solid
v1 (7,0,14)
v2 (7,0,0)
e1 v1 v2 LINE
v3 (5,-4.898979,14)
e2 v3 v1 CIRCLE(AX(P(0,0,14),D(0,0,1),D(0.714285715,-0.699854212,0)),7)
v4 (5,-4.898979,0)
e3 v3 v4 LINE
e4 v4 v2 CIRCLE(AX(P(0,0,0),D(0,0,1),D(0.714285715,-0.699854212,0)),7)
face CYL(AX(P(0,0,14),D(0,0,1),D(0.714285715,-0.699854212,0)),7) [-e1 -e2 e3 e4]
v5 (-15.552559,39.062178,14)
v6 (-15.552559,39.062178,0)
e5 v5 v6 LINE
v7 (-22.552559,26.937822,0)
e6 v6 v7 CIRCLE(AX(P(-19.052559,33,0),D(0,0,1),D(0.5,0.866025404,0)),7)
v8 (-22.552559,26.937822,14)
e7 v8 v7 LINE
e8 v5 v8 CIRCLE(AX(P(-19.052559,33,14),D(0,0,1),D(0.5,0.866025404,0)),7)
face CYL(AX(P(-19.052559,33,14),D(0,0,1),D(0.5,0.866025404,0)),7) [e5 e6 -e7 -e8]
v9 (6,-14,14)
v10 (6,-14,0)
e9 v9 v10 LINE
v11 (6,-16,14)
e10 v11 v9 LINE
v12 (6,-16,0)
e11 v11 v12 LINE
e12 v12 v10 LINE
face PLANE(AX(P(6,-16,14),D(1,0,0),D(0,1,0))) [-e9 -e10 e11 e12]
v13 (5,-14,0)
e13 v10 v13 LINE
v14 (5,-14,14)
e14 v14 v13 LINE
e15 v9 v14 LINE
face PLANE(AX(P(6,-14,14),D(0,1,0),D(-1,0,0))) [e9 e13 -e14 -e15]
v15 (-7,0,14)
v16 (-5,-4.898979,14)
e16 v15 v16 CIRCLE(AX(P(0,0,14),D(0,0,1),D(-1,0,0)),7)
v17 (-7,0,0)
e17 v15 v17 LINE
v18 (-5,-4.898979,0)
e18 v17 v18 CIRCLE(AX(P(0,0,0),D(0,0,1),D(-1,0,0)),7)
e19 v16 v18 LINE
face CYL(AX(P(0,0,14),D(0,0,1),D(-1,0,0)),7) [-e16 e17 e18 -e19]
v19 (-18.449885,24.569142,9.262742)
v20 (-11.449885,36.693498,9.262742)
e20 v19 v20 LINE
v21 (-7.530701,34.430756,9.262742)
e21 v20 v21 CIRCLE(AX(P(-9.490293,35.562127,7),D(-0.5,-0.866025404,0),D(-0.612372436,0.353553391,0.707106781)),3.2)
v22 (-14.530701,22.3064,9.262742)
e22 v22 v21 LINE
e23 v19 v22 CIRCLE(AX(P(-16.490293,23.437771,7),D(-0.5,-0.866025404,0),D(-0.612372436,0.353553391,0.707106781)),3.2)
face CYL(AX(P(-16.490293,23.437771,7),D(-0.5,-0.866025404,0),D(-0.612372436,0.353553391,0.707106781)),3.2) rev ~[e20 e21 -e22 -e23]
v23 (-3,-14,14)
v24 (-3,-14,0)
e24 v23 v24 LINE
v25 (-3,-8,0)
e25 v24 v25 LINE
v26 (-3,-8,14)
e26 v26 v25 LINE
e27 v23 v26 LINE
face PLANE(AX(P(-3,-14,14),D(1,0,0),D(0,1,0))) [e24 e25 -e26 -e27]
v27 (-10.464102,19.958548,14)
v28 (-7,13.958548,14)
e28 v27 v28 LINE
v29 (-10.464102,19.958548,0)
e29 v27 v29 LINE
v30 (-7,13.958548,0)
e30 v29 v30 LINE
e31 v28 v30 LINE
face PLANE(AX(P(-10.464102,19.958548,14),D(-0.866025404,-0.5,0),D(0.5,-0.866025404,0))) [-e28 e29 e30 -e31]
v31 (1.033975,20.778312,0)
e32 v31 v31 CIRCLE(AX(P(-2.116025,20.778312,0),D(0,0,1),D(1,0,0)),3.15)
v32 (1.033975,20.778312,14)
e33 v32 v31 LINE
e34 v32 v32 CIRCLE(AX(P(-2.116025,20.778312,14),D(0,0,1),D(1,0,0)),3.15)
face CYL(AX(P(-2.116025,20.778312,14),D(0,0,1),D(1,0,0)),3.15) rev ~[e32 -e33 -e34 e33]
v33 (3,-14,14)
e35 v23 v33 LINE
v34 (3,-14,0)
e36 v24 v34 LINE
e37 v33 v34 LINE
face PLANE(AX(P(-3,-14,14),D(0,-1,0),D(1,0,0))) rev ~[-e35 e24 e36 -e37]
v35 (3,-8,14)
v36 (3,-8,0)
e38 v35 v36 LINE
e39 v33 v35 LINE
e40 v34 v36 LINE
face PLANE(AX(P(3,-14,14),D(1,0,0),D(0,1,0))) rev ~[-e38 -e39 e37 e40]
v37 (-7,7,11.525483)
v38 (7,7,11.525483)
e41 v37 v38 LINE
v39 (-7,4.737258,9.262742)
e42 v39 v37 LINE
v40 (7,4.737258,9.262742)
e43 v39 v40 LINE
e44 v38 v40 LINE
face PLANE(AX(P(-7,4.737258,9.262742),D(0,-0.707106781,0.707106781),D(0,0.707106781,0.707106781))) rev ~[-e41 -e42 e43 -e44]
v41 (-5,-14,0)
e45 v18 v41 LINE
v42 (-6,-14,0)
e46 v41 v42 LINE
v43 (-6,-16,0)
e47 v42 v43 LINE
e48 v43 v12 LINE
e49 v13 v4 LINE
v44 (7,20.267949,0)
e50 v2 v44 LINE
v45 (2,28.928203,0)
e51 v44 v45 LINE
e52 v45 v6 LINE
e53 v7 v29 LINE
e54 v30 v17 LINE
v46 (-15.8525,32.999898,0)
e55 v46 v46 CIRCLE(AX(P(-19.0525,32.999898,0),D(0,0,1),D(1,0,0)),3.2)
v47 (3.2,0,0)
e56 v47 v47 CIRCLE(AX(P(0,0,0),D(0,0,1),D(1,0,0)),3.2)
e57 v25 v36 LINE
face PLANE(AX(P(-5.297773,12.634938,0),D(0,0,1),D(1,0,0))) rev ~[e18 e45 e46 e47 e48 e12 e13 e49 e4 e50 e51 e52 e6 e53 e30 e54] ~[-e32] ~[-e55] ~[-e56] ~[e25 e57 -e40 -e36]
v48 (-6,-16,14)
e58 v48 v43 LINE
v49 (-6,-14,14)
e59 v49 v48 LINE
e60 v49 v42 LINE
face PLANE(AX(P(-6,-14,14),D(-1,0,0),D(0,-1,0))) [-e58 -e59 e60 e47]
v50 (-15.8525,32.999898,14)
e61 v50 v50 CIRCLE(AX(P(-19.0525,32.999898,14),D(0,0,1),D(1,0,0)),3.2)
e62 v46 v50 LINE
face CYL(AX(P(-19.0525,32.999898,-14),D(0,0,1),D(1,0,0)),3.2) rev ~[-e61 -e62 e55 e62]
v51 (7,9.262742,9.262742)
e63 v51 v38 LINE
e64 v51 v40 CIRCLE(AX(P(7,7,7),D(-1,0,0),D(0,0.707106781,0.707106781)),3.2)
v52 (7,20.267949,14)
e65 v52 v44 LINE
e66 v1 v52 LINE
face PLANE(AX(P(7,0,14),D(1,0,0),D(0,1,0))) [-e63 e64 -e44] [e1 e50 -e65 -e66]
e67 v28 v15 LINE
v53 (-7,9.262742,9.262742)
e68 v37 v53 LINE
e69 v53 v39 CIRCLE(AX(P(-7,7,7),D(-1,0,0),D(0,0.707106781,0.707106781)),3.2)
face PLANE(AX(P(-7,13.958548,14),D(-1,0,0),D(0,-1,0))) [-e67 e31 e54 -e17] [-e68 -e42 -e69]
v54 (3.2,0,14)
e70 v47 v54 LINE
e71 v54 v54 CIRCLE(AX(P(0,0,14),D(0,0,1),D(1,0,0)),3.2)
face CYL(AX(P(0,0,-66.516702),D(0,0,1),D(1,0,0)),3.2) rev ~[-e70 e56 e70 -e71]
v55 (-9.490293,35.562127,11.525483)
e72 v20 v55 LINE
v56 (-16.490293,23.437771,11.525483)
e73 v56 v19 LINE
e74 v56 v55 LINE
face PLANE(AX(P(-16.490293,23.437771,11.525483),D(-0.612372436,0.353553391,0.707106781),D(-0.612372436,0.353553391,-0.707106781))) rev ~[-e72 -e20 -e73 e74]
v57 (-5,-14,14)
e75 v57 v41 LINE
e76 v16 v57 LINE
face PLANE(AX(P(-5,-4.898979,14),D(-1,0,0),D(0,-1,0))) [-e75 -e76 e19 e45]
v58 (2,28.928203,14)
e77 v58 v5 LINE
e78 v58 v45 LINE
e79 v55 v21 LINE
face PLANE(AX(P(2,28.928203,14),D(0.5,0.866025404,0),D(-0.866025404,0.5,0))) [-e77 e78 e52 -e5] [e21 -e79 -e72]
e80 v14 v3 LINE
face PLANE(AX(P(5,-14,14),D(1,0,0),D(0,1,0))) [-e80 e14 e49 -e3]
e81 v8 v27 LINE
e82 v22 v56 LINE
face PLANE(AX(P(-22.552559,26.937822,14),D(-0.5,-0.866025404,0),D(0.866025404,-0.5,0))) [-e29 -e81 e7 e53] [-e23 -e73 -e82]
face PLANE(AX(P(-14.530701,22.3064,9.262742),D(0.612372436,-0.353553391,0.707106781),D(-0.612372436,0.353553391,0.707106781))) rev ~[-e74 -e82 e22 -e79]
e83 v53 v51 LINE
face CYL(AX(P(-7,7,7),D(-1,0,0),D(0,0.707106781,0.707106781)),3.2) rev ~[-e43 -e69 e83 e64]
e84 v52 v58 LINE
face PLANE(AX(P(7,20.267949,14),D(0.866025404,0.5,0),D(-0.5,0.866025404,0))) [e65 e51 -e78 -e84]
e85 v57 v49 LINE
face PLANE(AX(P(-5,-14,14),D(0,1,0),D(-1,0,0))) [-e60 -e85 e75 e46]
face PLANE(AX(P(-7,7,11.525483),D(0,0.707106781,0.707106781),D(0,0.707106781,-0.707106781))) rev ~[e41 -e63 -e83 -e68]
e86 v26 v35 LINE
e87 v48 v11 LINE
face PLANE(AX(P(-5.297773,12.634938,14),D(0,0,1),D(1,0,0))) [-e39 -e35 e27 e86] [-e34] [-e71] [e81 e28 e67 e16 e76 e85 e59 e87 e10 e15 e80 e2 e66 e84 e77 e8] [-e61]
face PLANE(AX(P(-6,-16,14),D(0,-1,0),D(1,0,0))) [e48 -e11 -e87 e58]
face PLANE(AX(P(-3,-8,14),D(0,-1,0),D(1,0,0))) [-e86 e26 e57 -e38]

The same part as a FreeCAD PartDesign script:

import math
import FreeCAD as App
import Part
import Sketcher
Q = App.Units.Quantity


def add_polygon(sketch, points):
    """Adds a closed chain of lines whose ends are joined by coincident constraints."""
    first, n = sketch.GeometryCount, len(points)
    for a, b in zip(points, points[1:] + points[:1]):
        sketch.addGeometry(Part.LineSegment(App.Vector(*a, 0), App.Vector(*b, 0)), False)
    for i in range(n):
        sketch.addConstraint(Sketcher.Constraint("Coincident", first + i, 2, first + (i + 1) % n, 1))

doc = App.newDocument("Part")
body = doc.addObject("PartDesign::Body", "Body")

sketch1 = body.newObject("Sketcher::SketchObject", "Sketch")
sketch1.AttachmentSupport = (doc.getObject("XY_Plane"), [""])
sketch1.MapMode = "FlatFace"
sketch1.AttachmentOffset = App.Placement(App.Vector(0, 0, 14), App.Rotation())
sketch1.addGeometry(Part.LineSegment(App.Vector(7, 0, 0), App.Vector(7, 20.3, 0)), False)
sketch1.addGeometry(Part.LineSegment(App.Vector(7, 20.3, 0), App.Vector(2, 28.9, 0)), False)
sketch1.addGeometry(Part.LineSegment(App.Vector(2, 28.9, 0), App.Vector(-15.6, 39.1, 0)), False)
sketch1.addGeometry(Part.ArcOfCircle(Part.Circle(App.Vector(-19.1, 33, 0), App.Vector(0, 0, 1), 7), math.radians(60), math.radians(240)), False)
sketch1.addGeometry(Part.LineSegment(App.Vector(-22.6, 26.9, 0), App.Vector(-10.5, 20, 0)), False)
sketch1.addGeometry(Part.LineSegment(App.Vector(-10.5, 20, 0), App.Vector(-7, 14, 0)), False)
sketch1.addGeometry(Part.LineSegment(App.Vector(-7, 14, 0), App.Vector(-7, 0, 0)), False)
sketch1.addGeometry(Part.ArcOfCircle(Part.Circle(App.Vector(0, 0, 0), App.Vector(0, 0, 1), 7), math.radians(-180), math.radians(-136)), False)
sketch1.addGeometry(Part.LineSegment(App.Vector(-5, -4.9, 0), App.Vector(-5, -14, 0)), False)
sketch1.addGeometry(Part.LineSegment(App.Vector(-5, -14, 0), App.Vector(-6, -14, 0)), False)
sketch1.addGeometry(Part.LineSegment(App.Vector(-6, -14, 0), App.Vector(-6, -16, 0)), False)
sketch1.addGeometry(Part.LineSegment(App.Vector(-6, -16, 0), App.Vector(6, -16, 0)), False)
sketch1.addGeometry(Part.LineSegment(App.Vector(6, -16, 0), App.Vector(6, -14, 0)), False)
sketch1.addGeometry(Part.LineSegment(App.Vector(6, -14, 0), App.Vector(5, -14, 0)), False)
sketch1.addGeometry(Part.LineSegment(App.Vector(5, -14, 0), App.Vector(5, -4.9, 0)), False)
sketch1.addGeometry(Part.ArcOfCircle(Part.Circle(App.Vector(0, 0, 0), App.Vector(0, 0, 1), 7), math.radians(-44), math.radians(0)), False)
add_polygon(sketch1, [(3, -14), (-3, -14), (-3, -8), (3, -8)])
sketch1.addConstraint(Sketcher.Constraint("Coincident", 0, 2, 1, 1))
sketch1.addConstraint(Sketcher.Constraint("Coincident", 1, 2, 2, 1))
sketch1.addConstraint(Sketcher.Constraint("Tangent", 2, 2, 3, 1))
sketch1.addConstraint(Sketcher.Constraint("Tangent", 3, 2, 4, 1))
sketch1.addConstraint(Sketcher.Constraint("Coincident", 4, 2, 5, 1))
sketch1.addConstraint(Sketcher.Constraint("Coincident", 5, 2, 6, 1))
sketch1.addConstraint(Sketcher.Constraint("Tangent", 6, 2, 7, 1))
sketch1.addConstraint(Sketcher.Constraint("Coincident", 7, 2, 8, 1))
sketch1.addConstraint(Sketcher.Constraint("Coincident", 8, 2, 9, 1))
sketch1.addConstraint(Sketcher.Constraint("Coincident", 9, 2, 10, 1))
sketch1.addConstraint(Sketcher.Constraint("Coincident", 10, 2, 11, 1))
sketch1.addConstraint(Sketcher.Constraint("Coincident", 11, 2, 12, 1))
sketch1.addConstraint(Sketcher.Constraint("Coincident", 12, 2, 13, 1))
sketch1.addConstraint(Sketcher.Constraint("Coincident", 13, 2, 14, 1))
sketch1.addConstraint(Sketcher.Constraint("Coincident", 14, 2, 15, 1))
sketch1.addConstraint(Sketcher.Constraint("Tangent", 15, 2, 0, 1))
sketch1.addConstraint(Sketcher.Constraint("Vertical", 0))
sketch1.addConstraint(Sketcher.Constraint("Vertical", 6))
sketch1.addConstraint(Sketcher.Constraint("Vertical", 8))
sketch1.addConstraint(Sketcher.Constraint("Horizontal", 9))
sketch1.addConstraint(Sketcher.Constraint("Vertical", 10))
sketch1.addConstraint(Sketcher.Constraint("Horizontal", 11))
sketch1.addConstraint(Sketcher.Constraint("Vertical", 12))
sketch1.addConstraint(Sketcher.Constraint("Horizontal", 13))
sketch1.addConstraint(Sketcher.Constraint("Vertical", 14))
sketch1.addConstraint(Sketcher.Constraint("Horizontal", 16))
sketch1.addConstraint(Sketcher.Constraint("Vertical", 17))
sketch1.addConstraint(Sketcher.Constraint("Horizontal", 18))
sketch1.addConstraint(Sketcher.Constraint("Vertical", 19))
sketch1.addConstraint(Sketcher.Constraint("Coincident", 7, 3, -1, 1))
sketch1.addConstraint(Sketcher.Constraint("Coincident", 15, 3, -1, 1))
sketch1.addConstraint(Sketcher.Constraint("Equal", 3, 7))
sketch1.addConstraint(Sketcher.Constraint("Equal", 7, 15))
sketch1.addConstraint(Sketcher.Constraint("Symmetric", 9, 2, 12, 2, -2))
sketch1.addConstraint(Sketcher.Constraint("Parallel", 2, 4))
sketch1.addConstraint(Sketcher.Constraint("Parallel", 1, 5))
sketch1.addConstraint(Sketcher.Constraint("Horizontal", 7, 2, 14, 2))
sketch1.addConstraint(Sketcher.Constraint("Horizontal", 13, 2, 16, 2))
sketch1.addConstraint(Sketcher.Constraint("Equal", 18, 17))
sketch1.addConstraint(Sketcher.Constraint("Radius", 3, 7.0))
sketch1.addConstraint(Sketcher.Constraint("DistanceX", 9, 2, 9, 1, 1.0))
sketch1.addConstraint(Sketcher.Constraint("DistanceX", 11, 1, 11, 2, 12.0))
sketch1.addConstraint(Sketcher.Constraint("DistanceX", 16, 2, 16, 1, 6.0))
sketch1.addConstraint(Sketcher.Constraint("DistanceY", 10, 2, 10, 1, 2.0))
sketch1.addConstraint(Sketcher.Constraint("Angle", 1, Q("120 deg")))
sketch1.addConstraint(Sketcher.Constraint("Angle", 2, Q("150 deg")))
sketch1.addConstraint(Sketcher.Constraint("Distance", 1, 10.0))
sketch1.addConstraint(Sketcher.Constraint("DistanceY", -1, 1, 3, 3, 33.0))
sketch1.addConstraint(Sketcher.Constraint("DistanceY", 8, 2, -1, 1, 14.0))
sketch1.addConstraint(Sketcher.Constraint("DistanceX", 16, 2, -1, 1, 3.0))
sketch1.addConstraint(Sketcher.Constraint("DistanceY", 5, 2, 4, 2, 6.0))
sketch1.addConstraint(Sketcher.Constraint("DistanceY", 0, 1, 0, 2, 20.267949))
pad1 = body.newObject("PartDesign::Pad", "Pad")
pad1.Profile = sketch1
pad1.Length = 14
pad1.Reversed = True

sketch2 = body.newObject("Sketcher::SketchObject", "Sketch001")
sketch2.AttachmentSupport = (doc.getObject("XY_Plane"), [""])
sketch2.MapMode = "FlatFace"
sketch2.addGeometry(Part.Circle(App.Vector(-19.1, 33, 0), App.Vector(0, 0, 1), 3.2), False)
sketch2.addConstraint(Sketcher.Constraint("Diameter", 0, 6.4))
sketch2.addConstraint(Sketcher.Constraint("DistanceX", 0, 3, -1, 1, 19.0525))
sketch2.addConstraint(Sketcher.Constraint("DistanceY", -1, 1, 0, 3, 32.999898))
doc.recompute()
hole = body.newObject("PartDesign::Hole", "Hole")
hole.Profile = sketch2
hole.ThreadType = "None"
hole.Diameter = 6.4
hole.DepthType = "Dimension"
hole.Depth = 14
hole.DrillPoint = "Flat"
hole.Reversed = True

sketch3 = body.newObject("Sketcher::SketchObject", "Sketch002")
sketch3.AttachmentSupport = (doc.getObject("XY_Plane"), [""])
sketch3.MapMode = "FlatFace"
sketch3.addGeometry(Part.Circle(App.Vector(0, 0, 0), App.Vector(0, 0, 1), 3.2), False)
sketch3.addConstraint(Sketcher.Constraint("Coincident", 0, 3, -1, 1))
sketch3.addConstraint(Sketcher.Constraint("Diameter", 0, 6.4))
doc.recompute()
hole2 = body.newObject("PartDesign::Hole", "Hole001")
hole2.Profile = sketch3
hole2.ThreadType = "None"
hole2.Diameter = 6.4
hole2.DepthType = "ThroughAll"
hole2.Reversed = True

sketch4 = body.newObject("Sketcher::SketchObject", "Sketch003")
sketch4.AttachmentSupport = (doc.getObject("YZ_Plane"), [""])
sketch4.MapMode = "FlatFace"
sketch4.AttachmentOffset = App.Placement(App.Vector(0, 0, -7), App.Rotation())
sketch4.addGeometry(Part.LineSegment(App.Vector(4.7, 9.3, 0), App.Vector(7, 11.5, 0)), False)
sketch4.addGeometry(Part.LineSegment(App.Vector(7, 11.5, 0), App.Vector(9.3, 9.3, 0)), False)
sketch4.addGeometry(Part.ArcOfCircle(Part.Circle(App.Vector(7, 7, 0), App.Vector(0, 0, 1), 3.2), math.radians(135), math.radians(405)), False)
sketch4.addConstraint(Sketcher.Constraint("Coincident", 0, 2, 1, 1))
sketch4.addConstraint(Sketcher.Constraint("Tangent", 1, 2, 2, 2))
sketch4.addConstraint(Sketcher.Constraint("Tangent", 2, 1, 0, 1))
sketch4.addConstraint(Sketcher.Constraint("Perpendicular", 0, 1))
sketch4.addConstraint(Sketcher.Constraint("Horizontal", 1, 2, 2, 1))
sketch4.addConstraint(Sketcher.Constraint("Radius", 2, 3.2))
sketch4.addConstraint(Sketcher.Constraint("DistanceX", -1, 1, 2, 3, 7.0))
sketch4.addConstraint(Sketcher.Constraint("DistanceY", -1, 1, 2, 3, 7.0))
pocket1 = body.newObject("PartDesign::Pocket", "Pocket")
pocket1.Profile = sketch4
pocket1.Type = "ThroughAll"
pocket1.Reversed = True

sketch5 = body.newObject("Sketcher::SketchObject", "Sketch004")
sketch5.Placement = App.Placement(App.Vector(6.026279, 10.437822, 0), App.Rotation(App.Vector(0.866025404, -0.5, 0), App.Vector(0, 0, 1), App.Vector(-0.5, -0.866025404, 0), "ZXY"))
sketch5.addGeometry(Part.LineSegment(App.Vector(-26, 11.5, 0), App.Vector(-28.3, 9.3, 0)), False)
sketch5.addGeometry(Part.ArcOfCircle(Part.Circle(App.Vector(-26, 7, 0), App.Vector(0, 0, 1), 3.2), math.radians(135), math.radians(405)), False)
sketch5.addGeometry(Part.LineSegment(App.Vector(-23.7, 9.3, 0), App.Vector(-26, 11.5, 0)), False)
sketch5.addConstraint(Sketcher.Constraint("Tangent", 0, 2, 1, 1))
sketch5.addConstraint(Sketcher.Constraint("Tangent", 1, 2, 2, 1))
sketch5.addConstraint(Sketcher.Constraint("Coincident", 2, 2, 0, 1))
sketch5.addConstraint(Sketcher.Constraint("Perpendicular", 0, 2))
sketch5.addConstraint(Sketcher.Constraint("Horizontal", 0, 2, 1, 2))
sketch5.addConstraint(Sketcher.Constraint("Radius", 1, 3.2))
sketch5.addConstraint(Sketcher.Constraint("DistanceY", -1, 1, 1, 3, 7.0))
sketch5.addConstraint(Sketcher.Constraint("DistanceX", 1, 3, -1, 1, 25.999898))
pocket2 = body.newObject("PartDesign::Pocket", "Pocket001")
pocket2.Profile = sketch5
pocket2.Type = "ThroughAll"

sketch6 = body.newObject("Sketcher::SketchObject", "Sketch005")
sketch6.AttachmentSupport = (doc.getObject("XY_Plane"), [""])
sketch6.MapMode = "FlatFace"
sketch6.AttachmentOffset = App.Placement(App.Vector(0, 0, 14), App.Rotation())
sketch6.addGeometry(Part.Circle(App.Vector(-2.1, 20.8, 0), App.Vector(0, 0, 1), 3.1), False)
sketch6.addConstraint(Sketcher.Constraint("Diameter", 0, 6.3))
sketch6.addConstraint(Sketcher.Constraint("DistanceX", 0, 3, -1, 1, 2.116025))
sketch6.addConstraint(Sketcher.Constraint("DistanceY", -1, 1, 0, 3, 20.778312))
pocket3 = body.newObject("PartDesign::Pocket", "Pocket002")
pocket3.Profile = sketch6
pocket3.Type = "ThroughAll"

doc.recompute()
